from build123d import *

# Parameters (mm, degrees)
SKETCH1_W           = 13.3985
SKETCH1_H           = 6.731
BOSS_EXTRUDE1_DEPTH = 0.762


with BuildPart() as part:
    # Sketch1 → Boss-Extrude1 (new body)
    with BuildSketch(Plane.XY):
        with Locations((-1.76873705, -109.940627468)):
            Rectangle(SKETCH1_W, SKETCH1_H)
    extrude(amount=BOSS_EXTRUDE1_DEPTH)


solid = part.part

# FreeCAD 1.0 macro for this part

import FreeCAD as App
import Part
import Sketcher

V = App.Vector
Q = App.Units.Quantity

doc = App.newDocument("Part")
body = doc.addObject("PartDesign::Body", "Body")

# Sketch on XY plane
sketch1 = doc.addObject("Sketcher::SketchObject", "Sketch")
body.addObject(sketch1)
sketch1.AttachmentSupport = (doc.XY_Plane, [""])
sketch1.MapMode = "FlatFace"
sketch1.addGeometry([
    Part.LineSegment(V(-8, -107, 0), V(-8, -113, 0)),
    Part.LineSegment(V(-8, -113, 0), V(5, -113, 0)),
    Part.LineSegment(V(5, -113, 0), V(5, -107, 0)),
    Part.LineSegment(V(5, -107, 0), V(-8, -107, 0)),
], False)
sketch1.addConstraint([
    Sketcher.Constraint("Coincident", 0, 2, 1, 1),
    Sketcher.Constraint("Coincident", 1, 2, 2, 1),
    Sketcher.Constraint("Coincident", 2, 2, 3, 1),
    Sketcher.Constraint("Coincident", 3, 2, 0, 1),
    Sketcher.Constraint("Vertical", 0),
    Sketcher.Constraint("Horizontal", 1),
    Sketcher.Constraint("Vertical", 2),
    Sketcher.Constraint("Horizontal", 3),
    Sketcher.Constraint("DistanceY", 0, 2, 0, 1, Q("0.265 in")),
    Sketcher.Constraint("DistanceX", 1, 1, 1, 2, Q("0.5275 in")),
    Sketcher.Constraint("DistanceX", 0, 2, -1, 1, 8.467987),
    Sketcher.Constraint("DistanceY", 0, 2, -1, 1, 113.306127),
])
pad1 = doc.addObject("PartDesign::Pad", "Pad")
body.addObject(pad1)
pad1.Profile = sketch1
pad1.Length = Q("0.03 in")

doc.recompute()
